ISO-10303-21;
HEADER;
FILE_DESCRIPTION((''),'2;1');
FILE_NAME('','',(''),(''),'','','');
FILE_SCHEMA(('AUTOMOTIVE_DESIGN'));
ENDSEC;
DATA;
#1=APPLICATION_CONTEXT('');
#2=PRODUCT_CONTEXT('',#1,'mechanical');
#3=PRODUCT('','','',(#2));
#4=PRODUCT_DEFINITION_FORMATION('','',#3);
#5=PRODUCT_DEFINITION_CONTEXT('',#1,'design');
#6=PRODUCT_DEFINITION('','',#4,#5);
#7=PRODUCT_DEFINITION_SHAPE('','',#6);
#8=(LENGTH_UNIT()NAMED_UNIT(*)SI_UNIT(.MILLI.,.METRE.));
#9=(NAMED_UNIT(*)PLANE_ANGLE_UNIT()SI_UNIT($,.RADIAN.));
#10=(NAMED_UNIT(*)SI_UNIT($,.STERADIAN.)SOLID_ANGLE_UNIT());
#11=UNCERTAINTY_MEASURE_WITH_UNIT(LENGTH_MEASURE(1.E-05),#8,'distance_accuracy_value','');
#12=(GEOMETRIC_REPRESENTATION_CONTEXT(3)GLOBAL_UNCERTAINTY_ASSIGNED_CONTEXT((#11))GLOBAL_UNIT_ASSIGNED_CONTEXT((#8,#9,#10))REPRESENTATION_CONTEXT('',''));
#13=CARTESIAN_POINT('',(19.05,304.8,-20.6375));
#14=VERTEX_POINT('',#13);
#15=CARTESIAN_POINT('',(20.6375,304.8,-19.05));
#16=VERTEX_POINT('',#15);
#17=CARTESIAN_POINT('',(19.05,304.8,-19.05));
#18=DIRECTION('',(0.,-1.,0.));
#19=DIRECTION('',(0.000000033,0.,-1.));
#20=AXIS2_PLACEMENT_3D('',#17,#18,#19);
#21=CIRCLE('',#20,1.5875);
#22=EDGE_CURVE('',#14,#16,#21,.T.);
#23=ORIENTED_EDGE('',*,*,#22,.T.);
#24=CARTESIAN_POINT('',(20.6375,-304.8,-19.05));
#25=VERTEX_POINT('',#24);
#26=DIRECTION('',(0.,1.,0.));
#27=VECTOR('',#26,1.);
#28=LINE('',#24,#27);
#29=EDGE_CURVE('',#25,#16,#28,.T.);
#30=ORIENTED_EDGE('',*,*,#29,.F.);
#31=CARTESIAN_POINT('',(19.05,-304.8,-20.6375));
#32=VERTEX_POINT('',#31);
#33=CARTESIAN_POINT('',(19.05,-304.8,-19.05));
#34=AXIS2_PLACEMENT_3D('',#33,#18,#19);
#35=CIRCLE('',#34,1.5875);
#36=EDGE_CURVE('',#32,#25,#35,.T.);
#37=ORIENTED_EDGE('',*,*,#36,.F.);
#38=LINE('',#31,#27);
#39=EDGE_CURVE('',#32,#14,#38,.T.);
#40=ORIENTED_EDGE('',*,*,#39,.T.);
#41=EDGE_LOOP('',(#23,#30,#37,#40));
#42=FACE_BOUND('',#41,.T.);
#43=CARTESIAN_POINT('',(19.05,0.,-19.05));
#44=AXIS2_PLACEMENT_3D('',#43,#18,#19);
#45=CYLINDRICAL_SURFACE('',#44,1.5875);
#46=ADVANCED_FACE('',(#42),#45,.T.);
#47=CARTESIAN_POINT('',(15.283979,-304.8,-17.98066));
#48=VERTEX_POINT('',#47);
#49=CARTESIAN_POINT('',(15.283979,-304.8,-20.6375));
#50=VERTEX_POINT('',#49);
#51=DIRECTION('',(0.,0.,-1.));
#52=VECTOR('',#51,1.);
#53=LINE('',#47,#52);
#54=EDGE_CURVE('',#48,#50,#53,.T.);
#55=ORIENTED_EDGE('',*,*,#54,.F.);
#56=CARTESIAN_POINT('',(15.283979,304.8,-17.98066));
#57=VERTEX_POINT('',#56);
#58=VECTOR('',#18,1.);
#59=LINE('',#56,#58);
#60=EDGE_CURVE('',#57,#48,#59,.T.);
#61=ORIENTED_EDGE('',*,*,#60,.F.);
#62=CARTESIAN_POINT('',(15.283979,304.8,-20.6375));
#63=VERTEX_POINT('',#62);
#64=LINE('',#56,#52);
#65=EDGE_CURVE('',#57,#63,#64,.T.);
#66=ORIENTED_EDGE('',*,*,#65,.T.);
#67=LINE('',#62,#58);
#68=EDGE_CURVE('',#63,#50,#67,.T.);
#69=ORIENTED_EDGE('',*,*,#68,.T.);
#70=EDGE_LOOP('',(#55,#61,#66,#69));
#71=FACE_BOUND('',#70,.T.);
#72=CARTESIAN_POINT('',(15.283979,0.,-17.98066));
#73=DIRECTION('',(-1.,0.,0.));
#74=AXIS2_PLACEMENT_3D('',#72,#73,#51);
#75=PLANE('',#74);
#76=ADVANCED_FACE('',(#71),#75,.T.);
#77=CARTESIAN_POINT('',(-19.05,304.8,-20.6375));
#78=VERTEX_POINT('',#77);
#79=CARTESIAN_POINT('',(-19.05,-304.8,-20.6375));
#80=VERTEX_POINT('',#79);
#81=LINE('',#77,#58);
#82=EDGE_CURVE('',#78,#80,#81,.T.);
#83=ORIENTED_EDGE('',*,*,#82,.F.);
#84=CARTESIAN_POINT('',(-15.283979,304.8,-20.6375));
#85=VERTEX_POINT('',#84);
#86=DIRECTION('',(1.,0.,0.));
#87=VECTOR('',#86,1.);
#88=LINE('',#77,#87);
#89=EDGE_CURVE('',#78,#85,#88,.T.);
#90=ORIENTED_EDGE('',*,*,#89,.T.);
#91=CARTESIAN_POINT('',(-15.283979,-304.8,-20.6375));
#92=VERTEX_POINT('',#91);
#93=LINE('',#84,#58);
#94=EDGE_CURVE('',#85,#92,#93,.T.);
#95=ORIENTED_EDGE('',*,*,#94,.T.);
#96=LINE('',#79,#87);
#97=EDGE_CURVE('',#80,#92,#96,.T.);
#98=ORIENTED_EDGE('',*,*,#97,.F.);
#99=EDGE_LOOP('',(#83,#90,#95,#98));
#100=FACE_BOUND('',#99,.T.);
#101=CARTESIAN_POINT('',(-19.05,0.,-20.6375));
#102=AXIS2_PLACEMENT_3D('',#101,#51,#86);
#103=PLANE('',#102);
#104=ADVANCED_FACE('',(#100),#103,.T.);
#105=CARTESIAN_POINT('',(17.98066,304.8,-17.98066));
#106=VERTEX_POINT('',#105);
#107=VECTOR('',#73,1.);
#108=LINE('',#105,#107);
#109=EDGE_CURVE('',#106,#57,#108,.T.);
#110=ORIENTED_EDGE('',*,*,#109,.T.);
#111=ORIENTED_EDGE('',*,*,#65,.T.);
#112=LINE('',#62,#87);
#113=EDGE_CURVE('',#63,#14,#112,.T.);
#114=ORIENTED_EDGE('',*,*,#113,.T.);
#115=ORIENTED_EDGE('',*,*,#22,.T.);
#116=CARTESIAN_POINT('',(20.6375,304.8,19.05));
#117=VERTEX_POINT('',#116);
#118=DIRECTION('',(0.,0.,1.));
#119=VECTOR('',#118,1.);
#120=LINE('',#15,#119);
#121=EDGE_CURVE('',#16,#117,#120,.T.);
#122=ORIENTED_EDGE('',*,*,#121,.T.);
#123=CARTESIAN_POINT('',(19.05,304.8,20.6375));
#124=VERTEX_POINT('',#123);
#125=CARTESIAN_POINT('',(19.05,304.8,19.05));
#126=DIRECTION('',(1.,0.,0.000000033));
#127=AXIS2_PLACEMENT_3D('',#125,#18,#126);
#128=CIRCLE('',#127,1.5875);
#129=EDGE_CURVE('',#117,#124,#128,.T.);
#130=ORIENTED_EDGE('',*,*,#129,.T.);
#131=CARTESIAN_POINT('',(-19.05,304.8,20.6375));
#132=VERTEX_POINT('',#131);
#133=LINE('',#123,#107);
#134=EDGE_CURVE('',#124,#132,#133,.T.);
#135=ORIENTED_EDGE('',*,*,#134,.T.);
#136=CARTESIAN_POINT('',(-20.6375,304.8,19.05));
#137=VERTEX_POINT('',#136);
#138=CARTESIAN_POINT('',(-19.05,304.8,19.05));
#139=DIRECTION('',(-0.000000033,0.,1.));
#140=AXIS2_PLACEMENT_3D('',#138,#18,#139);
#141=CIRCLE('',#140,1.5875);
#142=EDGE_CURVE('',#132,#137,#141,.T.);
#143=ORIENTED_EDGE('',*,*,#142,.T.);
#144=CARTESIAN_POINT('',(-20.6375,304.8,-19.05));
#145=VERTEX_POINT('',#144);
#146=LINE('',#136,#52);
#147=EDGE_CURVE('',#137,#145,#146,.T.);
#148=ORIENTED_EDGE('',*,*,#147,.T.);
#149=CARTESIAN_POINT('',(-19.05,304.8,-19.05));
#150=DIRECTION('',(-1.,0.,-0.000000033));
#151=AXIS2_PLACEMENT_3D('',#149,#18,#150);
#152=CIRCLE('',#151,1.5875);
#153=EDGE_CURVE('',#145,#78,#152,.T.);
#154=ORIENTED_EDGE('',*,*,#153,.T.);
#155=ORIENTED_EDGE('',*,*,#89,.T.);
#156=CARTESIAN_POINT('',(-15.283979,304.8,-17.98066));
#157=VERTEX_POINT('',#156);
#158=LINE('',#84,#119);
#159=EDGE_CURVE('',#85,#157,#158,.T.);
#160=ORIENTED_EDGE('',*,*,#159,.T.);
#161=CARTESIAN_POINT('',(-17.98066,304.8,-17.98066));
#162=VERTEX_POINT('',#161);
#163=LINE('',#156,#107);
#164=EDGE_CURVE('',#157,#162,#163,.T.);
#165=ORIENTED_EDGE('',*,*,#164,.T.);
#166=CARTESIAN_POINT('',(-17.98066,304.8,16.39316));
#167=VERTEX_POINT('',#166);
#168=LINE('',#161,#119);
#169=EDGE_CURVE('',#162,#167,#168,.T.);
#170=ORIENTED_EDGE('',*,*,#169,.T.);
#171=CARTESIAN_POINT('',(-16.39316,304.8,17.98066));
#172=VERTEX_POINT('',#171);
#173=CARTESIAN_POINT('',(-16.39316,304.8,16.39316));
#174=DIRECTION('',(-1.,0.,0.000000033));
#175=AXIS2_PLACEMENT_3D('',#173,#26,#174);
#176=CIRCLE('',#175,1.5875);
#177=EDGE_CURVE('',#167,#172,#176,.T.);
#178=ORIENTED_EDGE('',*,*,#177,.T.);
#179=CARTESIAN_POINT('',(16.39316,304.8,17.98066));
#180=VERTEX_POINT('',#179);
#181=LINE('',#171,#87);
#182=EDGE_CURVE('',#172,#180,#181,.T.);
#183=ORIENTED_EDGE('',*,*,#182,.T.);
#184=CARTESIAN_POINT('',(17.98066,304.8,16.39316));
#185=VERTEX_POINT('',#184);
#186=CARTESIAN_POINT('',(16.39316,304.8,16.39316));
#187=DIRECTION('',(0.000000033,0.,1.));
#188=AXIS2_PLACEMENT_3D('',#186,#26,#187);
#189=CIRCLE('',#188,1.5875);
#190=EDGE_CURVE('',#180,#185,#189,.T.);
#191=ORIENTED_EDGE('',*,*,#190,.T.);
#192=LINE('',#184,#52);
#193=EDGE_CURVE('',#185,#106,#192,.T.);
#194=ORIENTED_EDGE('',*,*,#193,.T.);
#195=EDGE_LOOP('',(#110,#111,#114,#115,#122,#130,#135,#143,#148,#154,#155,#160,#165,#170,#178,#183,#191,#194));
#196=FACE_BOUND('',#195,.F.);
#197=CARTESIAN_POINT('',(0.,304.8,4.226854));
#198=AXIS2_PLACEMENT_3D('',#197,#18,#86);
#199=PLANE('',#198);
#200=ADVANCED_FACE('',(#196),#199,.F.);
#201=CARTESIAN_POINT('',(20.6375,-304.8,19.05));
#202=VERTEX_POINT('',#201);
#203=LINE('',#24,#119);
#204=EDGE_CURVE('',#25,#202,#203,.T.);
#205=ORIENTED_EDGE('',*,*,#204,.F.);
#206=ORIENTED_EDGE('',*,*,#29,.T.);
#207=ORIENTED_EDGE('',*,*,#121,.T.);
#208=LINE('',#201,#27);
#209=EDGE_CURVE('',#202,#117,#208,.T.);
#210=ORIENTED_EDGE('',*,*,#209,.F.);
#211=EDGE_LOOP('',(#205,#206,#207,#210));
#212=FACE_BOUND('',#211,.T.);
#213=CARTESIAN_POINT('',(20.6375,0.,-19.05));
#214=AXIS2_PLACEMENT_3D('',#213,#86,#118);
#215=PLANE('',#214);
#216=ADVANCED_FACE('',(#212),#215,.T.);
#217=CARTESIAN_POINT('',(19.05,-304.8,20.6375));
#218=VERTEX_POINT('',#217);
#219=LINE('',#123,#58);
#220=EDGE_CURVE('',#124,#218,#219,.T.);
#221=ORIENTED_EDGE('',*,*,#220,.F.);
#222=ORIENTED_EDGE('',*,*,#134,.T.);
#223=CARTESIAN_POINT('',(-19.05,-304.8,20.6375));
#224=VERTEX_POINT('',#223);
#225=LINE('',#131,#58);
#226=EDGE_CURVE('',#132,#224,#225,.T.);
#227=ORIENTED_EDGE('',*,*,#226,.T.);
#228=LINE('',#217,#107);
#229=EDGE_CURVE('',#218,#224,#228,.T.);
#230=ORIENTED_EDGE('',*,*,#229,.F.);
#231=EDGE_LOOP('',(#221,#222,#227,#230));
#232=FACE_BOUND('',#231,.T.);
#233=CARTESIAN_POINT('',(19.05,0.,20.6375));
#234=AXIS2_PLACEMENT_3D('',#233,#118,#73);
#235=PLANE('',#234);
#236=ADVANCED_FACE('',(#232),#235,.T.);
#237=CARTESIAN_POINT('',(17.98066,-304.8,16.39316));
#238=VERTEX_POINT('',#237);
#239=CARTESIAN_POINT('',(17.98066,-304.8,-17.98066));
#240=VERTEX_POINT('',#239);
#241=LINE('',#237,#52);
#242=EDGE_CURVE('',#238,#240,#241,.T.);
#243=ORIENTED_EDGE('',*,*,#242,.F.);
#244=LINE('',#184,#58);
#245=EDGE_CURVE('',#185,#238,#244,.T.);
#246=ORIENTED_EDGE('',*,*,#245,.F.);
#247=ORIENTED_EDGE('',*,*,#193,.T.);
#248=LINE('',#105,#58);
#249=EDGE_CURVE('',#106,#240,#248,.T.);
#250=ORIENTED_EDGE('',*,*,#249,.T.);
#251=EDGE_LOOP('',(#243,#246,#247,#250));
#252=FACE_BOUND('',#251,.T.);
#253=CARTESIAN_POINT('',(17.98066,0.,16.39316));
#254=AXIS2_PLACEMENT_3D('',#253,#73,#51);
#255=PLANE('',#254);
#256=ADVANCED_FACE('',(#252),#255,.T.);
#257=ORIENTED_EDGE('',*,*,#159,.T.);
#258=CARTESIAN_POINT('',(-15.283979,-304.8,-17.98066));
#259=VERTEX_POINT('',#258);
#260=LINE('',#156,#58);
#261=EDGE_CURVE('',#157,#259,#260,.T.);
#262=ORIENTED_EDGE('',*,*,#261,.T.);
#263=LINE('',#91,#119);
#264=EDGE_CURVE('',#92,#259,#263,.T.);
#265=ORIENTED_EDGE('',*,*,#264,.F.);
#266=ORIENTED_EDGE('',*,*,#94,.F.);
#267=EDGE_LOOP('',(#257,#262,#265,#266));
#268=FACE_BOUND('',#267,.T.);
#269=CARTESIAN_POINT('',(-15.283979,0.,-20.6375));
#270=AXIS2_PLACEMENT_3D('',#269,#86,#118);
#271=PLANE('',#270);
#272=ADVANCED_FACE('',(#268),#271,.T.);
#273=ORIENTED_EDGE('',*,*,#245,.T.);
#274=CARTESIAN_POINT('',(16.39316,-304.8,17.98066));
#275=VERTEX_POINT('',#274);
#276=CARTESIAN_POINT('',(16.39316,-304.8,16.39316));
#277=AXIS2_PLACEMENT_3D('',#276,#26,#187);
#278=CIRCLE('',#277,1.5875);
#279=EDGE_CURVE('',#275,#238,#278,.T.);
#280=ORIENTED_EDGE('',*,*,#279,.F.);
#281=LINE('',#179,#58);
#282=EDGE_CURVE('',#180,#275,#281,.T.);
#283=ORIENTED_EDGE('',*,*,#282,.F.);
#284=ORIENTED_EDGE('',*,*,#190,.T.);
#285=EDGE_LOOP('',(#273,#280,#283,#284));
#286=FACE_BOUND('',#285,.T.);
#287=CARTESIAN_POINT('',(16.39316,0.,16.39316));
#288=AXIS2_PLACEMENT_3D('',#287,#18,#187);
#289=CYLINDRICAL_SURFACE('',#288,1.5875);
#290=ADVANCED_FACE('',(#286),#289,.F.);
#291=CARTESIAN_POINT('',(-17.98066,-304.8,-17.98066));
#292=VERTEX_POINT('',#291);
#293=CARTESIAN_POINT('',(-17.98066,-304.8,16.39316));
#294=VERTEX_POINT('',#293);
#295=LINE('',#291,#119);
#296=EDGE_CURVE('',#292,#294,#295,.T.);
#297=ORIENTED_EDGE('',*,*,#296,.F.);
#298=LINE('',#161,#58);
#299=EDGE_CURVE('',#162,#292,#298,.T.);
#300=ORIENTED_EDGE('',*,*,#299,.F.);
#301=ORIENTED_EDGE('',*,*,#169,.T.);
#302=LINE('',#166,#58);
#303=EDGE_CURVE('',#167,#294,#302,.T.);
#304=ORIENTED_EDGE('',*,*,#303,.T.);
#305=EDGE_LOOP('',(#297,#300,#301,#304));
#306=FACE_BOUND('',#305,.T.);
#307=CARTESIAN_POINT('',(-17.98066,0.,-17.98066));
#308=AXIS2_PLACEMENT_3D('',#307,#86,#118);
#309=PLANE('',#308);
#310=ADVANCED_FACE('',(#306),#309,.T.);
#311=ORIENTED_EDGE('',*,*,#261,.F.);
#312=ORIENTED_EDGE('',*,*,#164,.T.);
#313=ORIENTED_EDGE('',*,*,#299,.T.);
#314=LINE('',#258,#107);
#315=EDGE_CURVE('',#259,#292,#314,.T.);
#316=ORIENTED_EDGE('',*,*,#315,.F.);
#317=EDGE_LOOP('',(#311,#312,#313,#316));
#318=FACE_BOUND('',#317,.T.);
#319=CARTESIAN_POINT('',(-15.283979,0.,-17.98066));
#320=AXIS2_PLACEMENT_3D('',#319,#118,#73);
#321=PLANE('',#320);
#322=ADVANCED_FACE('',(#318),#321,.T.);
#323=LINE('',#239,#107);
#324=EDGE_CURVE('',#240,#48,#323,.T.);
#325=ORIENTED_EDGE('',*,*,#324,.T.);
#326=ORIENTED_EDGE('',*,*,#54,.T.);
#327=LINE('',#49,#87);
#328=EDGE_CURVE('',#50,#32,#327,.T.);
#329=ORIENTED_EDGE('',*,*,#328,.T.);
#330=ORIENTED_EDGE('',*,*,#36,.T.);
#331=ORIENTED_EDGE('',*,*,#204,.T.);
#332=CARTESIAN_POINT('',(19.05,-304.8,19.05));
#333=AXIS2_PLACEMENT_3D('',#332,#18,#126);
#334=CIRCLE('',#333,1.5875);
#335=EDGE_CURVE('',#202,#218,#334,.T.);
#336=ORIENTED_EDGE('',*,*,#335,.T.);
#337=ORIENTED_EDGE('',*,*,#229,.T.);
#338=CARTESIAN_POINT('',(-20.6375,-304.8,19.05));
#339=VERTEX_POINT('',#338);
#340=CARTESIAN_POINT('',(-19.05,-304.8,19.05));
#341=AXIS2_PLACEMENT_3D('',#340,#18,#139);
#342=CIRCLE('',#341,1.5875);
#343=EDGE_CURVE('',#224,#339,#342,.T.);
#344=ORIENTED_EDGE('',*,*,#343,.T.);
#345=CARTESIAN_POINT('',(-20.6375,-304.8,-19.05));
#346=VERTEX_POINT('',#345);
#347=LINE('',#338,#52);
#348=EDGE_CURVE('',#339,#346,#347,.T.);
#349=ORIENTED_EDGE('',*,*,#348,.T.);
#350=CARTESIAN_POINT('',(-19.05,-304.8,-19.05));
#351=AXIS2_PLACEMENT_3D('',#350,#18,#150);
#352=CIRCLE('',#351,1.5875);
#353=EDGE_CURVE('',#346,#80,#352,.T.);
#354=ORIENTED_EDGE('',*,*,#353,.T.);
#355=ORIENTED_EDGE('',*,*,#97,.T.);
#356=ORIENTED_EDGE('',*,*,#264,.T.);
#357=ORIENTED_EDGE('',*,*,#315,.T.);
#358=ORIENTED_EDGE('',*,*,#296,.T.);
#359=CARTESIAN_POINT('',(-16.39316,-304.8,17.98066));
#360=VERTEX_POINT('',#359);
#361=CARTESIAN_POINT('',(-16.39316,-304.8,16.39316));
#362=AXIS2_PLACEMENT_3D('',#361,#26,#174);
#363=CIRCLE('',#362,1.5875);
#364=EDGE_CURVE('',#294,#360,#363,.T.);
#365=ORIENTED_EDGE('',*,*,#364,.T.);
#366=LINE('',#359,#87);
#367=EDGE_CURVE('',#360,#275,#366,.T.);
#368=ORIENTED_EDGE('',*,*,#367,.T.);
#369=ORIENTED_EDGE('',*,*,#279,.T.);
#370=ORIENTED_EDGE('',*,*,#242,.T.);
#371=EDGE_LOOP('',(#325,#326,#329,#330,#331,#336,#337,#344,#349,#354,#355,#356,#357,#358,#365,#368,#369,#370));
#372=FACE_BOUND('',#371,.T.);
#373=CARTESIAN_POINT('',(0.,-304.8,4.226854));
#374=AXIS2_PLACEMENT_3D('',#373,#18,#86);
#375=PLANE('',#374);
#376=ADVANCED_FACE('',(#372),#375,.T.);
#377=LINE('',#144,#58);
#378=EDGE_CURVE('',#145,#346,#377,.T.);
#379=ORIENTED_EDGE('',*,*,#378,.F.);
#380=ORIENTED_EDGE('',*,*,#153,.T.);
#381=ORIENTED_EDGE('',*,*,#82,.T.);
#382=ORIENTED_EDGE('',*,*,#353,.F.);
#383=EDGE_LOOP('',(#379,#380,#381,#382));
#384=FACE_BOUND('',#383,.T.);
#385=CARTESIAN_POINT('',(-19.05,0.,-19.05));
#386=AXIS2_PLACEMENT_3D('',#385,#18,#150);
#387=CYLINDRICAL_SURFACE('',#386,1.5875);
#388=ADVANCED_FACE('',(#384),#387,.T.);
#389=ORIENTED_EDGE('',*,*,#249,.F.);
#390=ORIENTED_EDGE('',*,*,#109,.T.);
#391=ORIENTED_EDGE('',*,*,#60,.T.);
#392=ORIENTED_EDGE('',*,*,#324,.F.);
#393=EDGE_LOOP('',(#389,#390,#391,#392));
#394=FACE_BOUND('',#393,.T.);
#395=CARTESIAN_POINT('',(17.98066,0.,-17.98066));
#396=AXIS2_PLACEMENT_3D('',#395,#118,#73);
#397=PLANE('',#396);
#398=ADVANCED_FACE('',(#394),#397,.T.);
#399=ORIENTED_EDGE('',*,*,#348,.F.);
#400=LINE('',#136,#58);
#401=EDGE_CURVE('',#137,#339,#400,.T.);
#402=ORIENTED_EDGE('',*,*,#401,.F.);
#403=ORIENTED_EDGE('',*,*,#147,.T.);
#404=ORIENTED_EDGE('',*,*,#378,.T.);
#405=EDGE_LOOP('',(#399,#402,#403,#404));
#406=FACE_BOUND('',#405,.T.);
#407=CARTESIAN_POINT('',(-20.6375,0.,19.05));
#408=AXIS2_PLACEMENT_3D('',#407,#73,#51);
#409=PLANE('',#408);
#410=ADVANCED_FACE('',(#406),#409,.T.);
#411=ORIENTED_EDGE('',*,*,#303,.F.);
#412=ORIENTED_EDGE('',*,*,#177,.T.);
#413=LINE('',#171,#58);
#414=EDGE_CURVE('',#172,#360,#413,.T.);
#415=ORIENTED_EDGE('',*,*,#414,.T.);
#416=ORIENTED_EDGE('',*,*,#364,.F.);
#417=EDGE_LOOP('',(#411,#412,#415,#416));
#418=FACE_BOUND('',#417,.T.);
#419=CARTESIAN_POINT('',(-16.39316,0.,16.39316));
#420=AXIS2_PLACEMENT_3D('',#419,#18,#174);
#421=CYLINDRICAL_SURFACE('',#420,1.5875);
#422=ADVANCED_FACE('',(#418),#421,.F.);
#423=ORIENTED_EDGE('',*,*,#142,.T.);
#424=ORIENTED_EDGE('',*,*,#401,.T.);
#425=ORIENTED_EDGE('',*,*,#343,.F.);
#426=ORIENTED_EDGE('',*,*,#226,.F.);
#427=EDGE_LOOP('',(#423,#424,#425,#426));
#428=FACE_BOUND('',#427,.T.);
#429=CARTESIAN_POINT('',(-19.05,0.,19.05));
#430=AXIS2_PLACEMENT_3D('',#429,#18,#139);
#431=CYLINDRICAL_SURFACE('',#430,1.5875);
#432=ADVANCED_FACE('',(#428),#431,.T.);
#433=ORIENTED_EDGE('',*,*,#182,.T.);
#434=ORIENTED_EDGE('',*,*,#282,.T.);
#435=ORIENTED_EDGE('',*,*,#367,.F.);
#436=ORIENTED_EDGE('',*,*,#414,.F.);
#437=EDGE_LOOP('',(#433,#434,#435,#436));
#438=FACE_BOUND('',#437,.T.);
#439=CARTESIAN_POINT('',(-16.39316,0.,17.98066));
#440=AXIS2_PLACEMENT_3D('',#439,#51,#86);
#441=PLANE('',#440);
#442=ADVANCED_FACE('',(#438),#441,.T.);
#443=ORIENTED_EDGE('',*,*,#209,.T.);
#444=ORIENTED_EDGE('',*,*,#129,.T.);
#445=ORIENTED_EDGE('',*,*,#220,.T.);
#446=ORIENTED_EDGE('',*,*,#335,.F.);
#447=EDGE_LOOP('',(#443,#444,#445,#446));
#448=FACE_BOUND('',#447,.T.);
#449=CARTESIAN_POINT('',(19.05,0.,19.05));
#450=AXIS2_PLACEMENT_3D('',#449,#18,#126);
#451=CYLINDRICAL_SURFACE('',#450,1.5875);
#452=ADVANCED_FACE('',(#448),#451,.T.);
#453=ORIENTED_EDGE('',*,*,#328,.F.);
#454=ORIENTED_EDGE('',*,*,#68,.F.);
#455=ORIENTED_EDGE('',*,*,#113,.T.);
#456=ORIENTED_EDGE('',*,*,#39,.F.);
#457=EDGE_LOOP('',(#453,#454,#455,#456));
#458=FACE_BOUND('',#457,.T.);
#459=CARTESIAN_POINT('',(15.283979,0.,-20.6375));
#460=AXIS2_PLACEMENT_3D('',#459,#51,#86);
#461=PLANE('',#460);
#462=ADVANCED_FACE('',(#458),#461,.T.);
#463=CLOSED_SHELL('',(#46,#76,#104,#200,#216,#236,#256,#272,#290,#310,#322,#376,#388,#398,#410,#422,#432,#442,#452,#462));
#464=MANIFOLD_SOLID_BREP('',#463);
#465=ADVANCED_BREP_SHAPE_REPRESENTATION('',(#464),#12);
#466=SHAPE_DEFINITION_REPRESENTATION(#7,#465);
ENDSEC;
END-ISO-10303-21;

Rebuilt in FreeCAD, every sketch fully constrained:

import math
import FreeCAD as App
import Part
import Sketcher
from FreeCAD import Vector
Q = App.Units.Quantity

doc = App.newDocument("Part")
body = doc.addObject("PartDesign::Body", "Body")

# Sketch on XZ plane
sketch1 = body.newObject("Sketcher::SketchObject", "Sketch")
sketch1.AttachmentSupport = (doc.getObject("XZ_Plane"), [""])
sketch1.MapMode = "FlatFace"
sketch1.addGeometry([
    Part.ArcOfCircle(Part.Circle(Vector(19, 19, 0), Vector(0, 0, 1), 1.6), math.radians(0), math.radians(90)),  # 0
    Part.LineSegment(Vector(19.1, 20.6, 0), Vector(-19.1, 20.6, 0)),  # 1
    Part.ArcOfCircle(Part.Circle(Vector(-19, 19, 0), Vector(0, 0, 1), 1.6), math.radians(90), math.radians(180)),  # 2
    Part.LineSegment(Vector(-20.6, 19.1, 0), Vector(-20.6, -19.1, 0)),  # 3
    Part.ArcOfCircle(Part.Circle(Vector(-19, -19, 0), Vector(0, 0, 1), 1.6), math.radians(-180), math.radians(-90)),  # 4
    Part.LineSegment(Vector(-19.1, -20.6, 0), Vector(-15.3, -20.6, 0)),  # 5
    Part.LineSegment(Vector(-15.3, -20.6, 0), Vector(-15.3, -18, 0)),  # 6
    Part.LineSegment(Vector(-15.3, -18, 0), Vector(-18, -18, 0)),  # 7
    Part.LineSegment(Vector(-18, -18, 0), Vector(-18, 16.4, 0)),  # 8
    Part.ArcOfCircle(Part.Circle(Vector(-16.4, 16.4, 0), Vector(0, 0, 1), 1.6), math.radians(90), math.radians(180)),  # 9
    Part.LineSegment(Vector(-16.4, 18, 0), Vector(16.4, 18, 0)),  # 10
    Part.ArcOfCircle(Part.Circle(Vector(16.4, 16.4, 0), Vector(0, 0, 1), 1.6), math.radians(0), math.radians(90)),  # 11
    Part.LineSegment(Vector(18, 16.4, 0), Vector(18, -18, 0)),  # 12
    Part.LineSegment(Vector(18, -18, 0), Vector(15.3, -18, 0)),  # 13
    Part.LineSegment(Vector(15.3, -18, 0), Vector(15.3, -20.6, 0)),  # 14
    Part.LineSegment(Vector(15.3, -20.6, 0), Vector(19.1, -20.6, 0)),  # 15
    Part.ArcOfCircle(Part.Circle(Vector(19, -19, 0), Vector(0, 0, 1), 1.6), math.radians(-90), math.radians(0)),  # 16
    Part.LineSegment(Vector(20.6, -19.1, 0), Vector(20.6, 19.1, 0)),  # 17
], False)
sketch1.addConstraint([
    Sketcher.Constraint("Tangent", 0, 2, 1, 1),
    Sketcher.Constraint("Tangent", 1, 2, 2, 1),
    Sketcher.Constraint("Tangent", 2, 2, 3, 1),
    Sketcher.Constraint("Tangent", 3, 2, 4, 1),
    Sketcher.Constraint("Tangent", 4, 2, 5, 1),
    Sketcher.Constraint("Coincident", 5, 2, 6, 1),
    Sketcher.Constraint("Coincident", 6, 2, 7, 1),
    Sketcher.Constraint("Coincident", 7, 2, 8, 1),
    Sketcher.Constraint("Tangent", 8, 2, 9, 2),
    Sketcher.Constraint("Tangent", 9, 1, 10, 1),
    Sketcher.Constraint("Tangent", 10, 2, 11, 2),
    Sketcher.Constraint("Tangent", 11, 1, 12, 1),
    Sketcher.Constraint("Coincident", 12, 2, 13, 1),
    Sketcher.Constraint("Coincident", 13, 2, 14, 1),
    Sketcher.Constraint("Coincident", 14, 2, 15, 1),
    Sketcher.Constraint("Tangent", 15, 2, 16, 1),
    Sketcher.Constraint("Tangent", 16, 2, 17, 1),
    Sketcher.Constraint("Tangent", 17, 2, 0, 1),
    Sketcher.Constraint("Horizontal", 1),
    Sketcher.Constraint("Vertical", 3),
    Sketcher.Constraint("Horizontal", 5),
    Sketcher.Constraint("Vertical", 6),
    Sketcher.Constraint("Horizontal", 7),
    Sketcher.Constraint("Vertical", 8),
    Sketcher.Constraint("Horizontal", 10),
    Sketcher.Constraint("Vertical", 12),
    Sketcher.Constraint("Horizontal", 13),
    Sketcher.Constraint("Vertical", 14),
    Sketcher.Constraint("Horizontal", 15),
    Sketcher.Constraint("Vertical", 17),
    Sketcher.Constraint("Equal", 0, 2),
    Sketcher.Constraint("Equal", 2, 4),
    Sketcher.Constraint("Equal", 4, 9),
    Sketcher.Constraint("Equal", 9, 11),
    Sketcher.Constraint("Equal", 11, 16),
    Sketcher.Constraint("Symmetric", 0, 3, 4, 3, -1, 1),
    Sketcher.Constraint("Symmetric", 7, 2, 12, 2, -2),
    Sketcher.Constraint("Symmetric", 5, 2, 14, 2, -2),
    Sketcher.Constraint("Equal", 1, 3),
    Sketcher.Constraint("DistanceX", 1, 2, 1, 1, Q("1.5 in")),
    Sketcher.Constraint("Radius", 0, Q("0.0625 in")),
    Sketcher.Constraint("DistanceX", 10, 1, 10, 2, Q("1.2908 in")),
    Sketcher.Constraint("DistanceY", 6, 1, 6, 2, Q("0.1046 in")),
    Sketcher.Constraint("DistanceY", 8, 1, 8, 2, Q("1.3533 in")),
    Sketcher.Constraint("DistanceX", 5, 1, 5, 2, Q("3.766021 mm")),
])
pad1 = body.newObject("PartDesign::Pad", "Pad")
pad1.Profile = sketch1
pad1.Length = Q("24 in")
pad1.Midplane = True

doc.recompute()
